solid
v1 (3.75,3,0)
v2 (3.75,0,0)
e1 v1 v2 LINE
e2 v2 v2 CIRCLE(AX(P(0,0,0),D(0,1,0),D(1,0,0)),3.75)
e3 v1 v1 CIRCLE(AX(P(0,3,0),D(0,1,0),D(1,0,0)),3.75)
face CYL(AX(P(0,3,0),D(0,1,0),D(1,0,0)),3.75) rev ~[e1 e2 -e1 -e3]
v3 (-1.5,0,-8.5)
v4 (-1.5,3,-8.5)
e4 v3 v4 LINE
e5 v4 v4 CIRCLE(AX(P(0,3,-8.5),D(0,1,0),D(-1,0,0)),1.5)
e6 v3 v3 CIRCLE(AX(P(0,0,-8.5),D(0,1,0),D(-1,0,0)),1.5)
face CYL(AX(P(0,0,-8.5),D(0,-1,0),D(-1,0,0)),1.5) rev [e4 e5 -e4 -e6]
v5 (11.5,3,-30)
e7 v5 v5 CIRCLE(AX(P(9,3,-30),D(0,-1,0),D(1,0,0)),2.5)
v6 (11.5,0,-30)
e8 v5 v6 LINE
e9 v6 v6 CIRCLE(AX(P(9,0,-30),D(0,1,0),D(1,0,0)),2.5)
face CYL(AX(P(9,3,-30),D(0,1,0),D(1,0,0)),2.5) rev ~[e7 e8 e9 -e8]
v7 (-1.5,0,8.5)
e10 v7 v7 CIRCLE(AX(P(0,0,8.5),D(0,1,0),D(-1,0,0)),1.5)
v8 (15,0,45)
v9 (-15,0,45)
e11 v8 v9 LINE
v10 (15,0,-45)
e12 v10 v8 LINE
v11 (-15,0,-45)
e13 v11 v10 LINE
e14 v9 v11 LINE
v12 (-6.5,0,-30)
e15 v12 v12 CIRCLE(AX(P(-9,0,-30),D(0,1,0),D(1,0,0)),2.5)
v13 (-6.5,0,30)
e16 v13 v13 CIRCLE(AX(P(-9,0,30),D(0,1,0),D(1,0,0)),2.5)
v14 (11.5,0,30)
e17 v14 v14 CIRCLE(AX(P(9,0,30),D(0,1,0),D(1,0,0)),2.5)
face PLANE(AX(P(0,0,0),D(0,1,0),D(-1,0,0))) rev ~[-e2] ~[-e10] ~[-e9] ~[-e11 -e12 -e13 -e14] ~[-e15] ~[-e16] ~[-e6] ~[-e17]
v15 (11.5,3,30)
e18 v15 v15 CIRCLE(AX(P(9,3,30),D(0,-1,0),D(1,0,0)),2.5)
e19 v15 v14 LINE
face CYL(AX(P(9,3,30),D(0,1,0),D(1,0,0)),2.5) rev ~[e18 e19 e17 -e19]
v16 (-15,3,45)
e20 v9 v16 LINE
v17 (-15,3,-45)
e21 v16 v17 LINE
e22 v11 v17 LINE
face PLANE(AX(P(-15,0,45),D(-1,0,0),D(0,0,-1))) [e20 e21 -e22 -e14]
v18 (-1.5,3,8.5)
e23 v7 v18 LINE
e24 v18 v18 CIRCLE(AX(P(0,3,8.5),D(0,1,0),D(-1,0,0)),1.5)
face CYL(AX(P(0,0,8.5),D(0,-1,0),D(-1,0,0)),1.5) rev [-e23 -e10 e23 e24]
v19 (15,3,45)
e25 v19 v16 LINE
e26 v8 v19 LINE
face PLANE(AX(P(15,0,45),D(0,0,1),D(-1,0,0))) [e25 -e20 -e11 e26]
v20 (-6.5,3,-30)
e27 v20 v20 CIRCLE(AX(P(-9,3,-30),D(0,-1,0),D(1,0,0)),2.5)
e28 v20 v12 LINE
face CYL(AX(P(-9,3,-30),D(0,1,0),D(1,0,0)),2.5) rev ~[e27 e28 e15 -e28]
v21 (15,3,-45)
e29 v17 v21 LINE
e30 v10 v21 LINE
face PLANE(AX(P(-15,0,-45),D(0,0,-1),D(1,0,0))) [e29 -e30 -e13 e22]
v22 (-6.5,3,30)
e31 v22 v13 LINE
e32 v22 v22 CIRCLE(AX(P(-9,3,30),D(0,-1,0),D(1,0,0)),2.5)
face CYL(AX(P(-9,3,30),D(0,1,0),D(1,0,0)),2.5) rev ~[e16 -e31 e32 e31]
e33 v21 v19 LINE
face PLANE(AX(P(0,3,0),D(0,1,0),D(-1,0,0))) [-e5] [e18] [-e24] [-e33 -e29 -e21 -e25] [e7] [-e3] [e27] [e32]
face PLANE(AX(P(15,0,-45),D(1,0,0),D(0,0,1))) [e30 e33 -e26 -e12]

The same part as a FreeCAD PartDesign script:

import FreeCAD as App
import Part
import Sketcher

V = App.Vector
Q = App.Units.Quantity


def add_polygon(sketch, points):
    """Adds a closed chain of lines whose ends are joined by coincident constraints."""
    first, n = sketch.GeometryCount, len(points)
    for a, b in zip(points, points[1:] + points[:1]):
        sketch.addGeometry(Part.LineSegment(App.Vector(*a, 0), App.Vector(*b, 0)), False)
    for i in range(n):
        sketch.addConstraint(Sketcher.Constraint("Coincident", first + i, 2, first + (i + 1) % n, 1))

doc = App.newDocument("Part")
params = doc.addObject("Spreadsheet::Sheet", "Params")
for row, (alias, value) in enumerate([
    ("sketch1_diameter", "3 mm"),
    ("sketch1_width", "30 mm"),
    ("sketch1_height", "90 mm"),
    ("pad1_length", "3 mm"),
    ("sketch2_diameter", "7.5 mm"),
    ("pocket1_length", "3 mm"),
    ("sketch3_diameter", "5 mm"),
    ("pocket2_length", "3 mm"),
], start=1):
    params.set(f"A{row}", alias)
    params.set(f"B{row}", "=" + value)
    params.setAlias(f"B{row}", alias)

body = doc.addObject("PartDesign::Body", "Body")

sketch1 = body.newObject("Sketcher::SketchObject", "Sketch")
sketch1.AttachmentSupport = (doc.getObject("XZ_Plane"), [""])
sketch1.MapMode = "FlatFace"
add_polygon(sketch1, [(15, 45), (15, -45), (-15, -45), (-15, 45)])
sketch1.addGeometry(Part.Circle(V(0, -8.5, 0), V(0, 0, 1), 1.5), False)
sketch1.addGeometry(Part.Circle(V(0, 8.5, 0), V(0, 0, 1), 1.5), False)
sketch1.addConstraint(Sketcher.Constraint("Vertical", 0))
sketch1.addConstraint(Sketcher.Constraint("Horizontal", 1))
sketch1.addConstraint(Sketcher.Constraint("Vertical", 2))
sketch1.addConstraint(Sketcher.Constraint("Horizontal", 3))
sketch1.addConstraint(Sketcher.Constraint("Equal", 4, 5))
sketch1.addConstraint(Sketcher.Constraint("Symmetric", 4, 3, 5, 3, -1, 1))
sketch1.addConstraint(Sketcher.Constraint("Symmetric", 0, 2, 2, 2, -1, 1))
sketch1.addConstraint(Sketcher.Constraint("PointOnObject", 4, 3, -2))
sketch1.addConstraint(Sketcher.Constraint("Diameter", 4, Q("3 mm")))
sketch1.addConstraint(Sketcher.Constraint("DistanceX", 1, 2, 1, 1, Q("30 mm")))
sketch1.addConstraint(Sketcher.Constraint("DistanceY", 0, 2, 0, 1, Q("90 mm")))
sketch1.addConstraint(Sketcher.Constraint("DistanceY", 4, 3, 5, 3, Q("17 mm")))
sketch1.setExpression("Constraints[12]", "Params.sketch1_diameter")
sketch1.setExpression("Constraints[13]", "Params.sketch1_width")
sketch1.setExpression("Constraints[14]", "Params.sketch1_height")
pad1 = body.newObject("PartDesign::Pad", "Pad")
pad1.Profile = sketch1
pad1.setExpression("Length", "Params.pad1_length")
pad1.Reversed = True

sketch2 = body.newObject("Sketcher::SketchObject", "Sketch001")
sketch2.AttachmentSupport = (doc.getObject("XZ_Plane"), [""])
sketch2.MapMode = "FlatFace"
sketch2.AttachmentOffset = App.Placement(V(0, 0, -3), App.Rotation())
sketch2.addGeometry(Part.Circle(V(0, 0, 0), V(0, 0, 1), 3.8), False)
sketch2.addConstraint(Sketcher.Constraint("Coincident", 0, 3, -1, 1))
sketch2.addConstraint(Sketcher.Constraint("Diameter", 0, Q("7.5 mm")))
sketch2.setExpression("Constraints[1]", "Params.sketch2_diameter")
pocket1 = body.newObject("PartDesign::Pocket", "Pocket")
pocket1.Profile = sketch2
pocket1.setExpression("Length", "Params.pocket1_length")
pocket1.Reversed = True

sketch3 = body.newObject("Sketcher::SketchObject", "Sketch002")
sketch3.AttachmentSupport = (doc.getObject("XZ_Plane"), [""])
sketch3.MapMode = "FlatFace"
sketch3.AttachmentOffset = App.Placement(V(0, 0, -3), App.Rotation())
sketch3.addGeometry(Part.Circle(V(-9, -30, 0), V(0, 0, 1), 2.5), False)
sketch3.addGeometry(Part.Circle(V(9, -30, 0), V(0, 0, 1), 2.5), False)
sketch3.addGeometry(Part.Circle(V(9, 30, 0), V(0, 0, 1), 2.5), False)
sketch3.addGeometry(Part.Circle(V(-9, 30, 0), V(0, 0, 1), 2.5), False)
sketch3.addConstraint(Sketcher.Constraint("Equal", 0, 1))
sketch3.addConstraint(Sketcher.Constraint("Equal", 1, 2))
sketch3.addConstraint(Sketcher.Constraint("Equal", 2, 3))
sketch3.addConstraint(Sketcher.Constraint("Symmetric", 0, 3, 2, 3, -1, 1))
sketch3.addConstraint(Sketcher.Constraint("Symmetric", 1, 3, 3, 3, -1, 1))
sketch3.addConstraint(Sketcher.Constraint("Symmetric", 0, 3, 1, 3, -2))
sketch3.addConstraint(Sketcher.Constraint("Diameter", 0, Q("5 mm")))
sketch3.addConstraint(Sketcher.Constraint("DistanceX", 0, 3, -1, 1, Q("9 mm")))
sketch3.addConstraint(Sketcher.Constraint("DistanceY", 0, 3, -1, 1, Q("30 mm")))
sketch3.setExpression("Constraints[6]", "Params.sketch3_diameter")
pocket2 = body.newObject("PartDesign::Pocket", "Pocket001")
pocket2.Profile = sketch3
pocket2.setExpression("Length", "Params.pocket2_length")
pocket2.Reversed = True

doc.recompute()
